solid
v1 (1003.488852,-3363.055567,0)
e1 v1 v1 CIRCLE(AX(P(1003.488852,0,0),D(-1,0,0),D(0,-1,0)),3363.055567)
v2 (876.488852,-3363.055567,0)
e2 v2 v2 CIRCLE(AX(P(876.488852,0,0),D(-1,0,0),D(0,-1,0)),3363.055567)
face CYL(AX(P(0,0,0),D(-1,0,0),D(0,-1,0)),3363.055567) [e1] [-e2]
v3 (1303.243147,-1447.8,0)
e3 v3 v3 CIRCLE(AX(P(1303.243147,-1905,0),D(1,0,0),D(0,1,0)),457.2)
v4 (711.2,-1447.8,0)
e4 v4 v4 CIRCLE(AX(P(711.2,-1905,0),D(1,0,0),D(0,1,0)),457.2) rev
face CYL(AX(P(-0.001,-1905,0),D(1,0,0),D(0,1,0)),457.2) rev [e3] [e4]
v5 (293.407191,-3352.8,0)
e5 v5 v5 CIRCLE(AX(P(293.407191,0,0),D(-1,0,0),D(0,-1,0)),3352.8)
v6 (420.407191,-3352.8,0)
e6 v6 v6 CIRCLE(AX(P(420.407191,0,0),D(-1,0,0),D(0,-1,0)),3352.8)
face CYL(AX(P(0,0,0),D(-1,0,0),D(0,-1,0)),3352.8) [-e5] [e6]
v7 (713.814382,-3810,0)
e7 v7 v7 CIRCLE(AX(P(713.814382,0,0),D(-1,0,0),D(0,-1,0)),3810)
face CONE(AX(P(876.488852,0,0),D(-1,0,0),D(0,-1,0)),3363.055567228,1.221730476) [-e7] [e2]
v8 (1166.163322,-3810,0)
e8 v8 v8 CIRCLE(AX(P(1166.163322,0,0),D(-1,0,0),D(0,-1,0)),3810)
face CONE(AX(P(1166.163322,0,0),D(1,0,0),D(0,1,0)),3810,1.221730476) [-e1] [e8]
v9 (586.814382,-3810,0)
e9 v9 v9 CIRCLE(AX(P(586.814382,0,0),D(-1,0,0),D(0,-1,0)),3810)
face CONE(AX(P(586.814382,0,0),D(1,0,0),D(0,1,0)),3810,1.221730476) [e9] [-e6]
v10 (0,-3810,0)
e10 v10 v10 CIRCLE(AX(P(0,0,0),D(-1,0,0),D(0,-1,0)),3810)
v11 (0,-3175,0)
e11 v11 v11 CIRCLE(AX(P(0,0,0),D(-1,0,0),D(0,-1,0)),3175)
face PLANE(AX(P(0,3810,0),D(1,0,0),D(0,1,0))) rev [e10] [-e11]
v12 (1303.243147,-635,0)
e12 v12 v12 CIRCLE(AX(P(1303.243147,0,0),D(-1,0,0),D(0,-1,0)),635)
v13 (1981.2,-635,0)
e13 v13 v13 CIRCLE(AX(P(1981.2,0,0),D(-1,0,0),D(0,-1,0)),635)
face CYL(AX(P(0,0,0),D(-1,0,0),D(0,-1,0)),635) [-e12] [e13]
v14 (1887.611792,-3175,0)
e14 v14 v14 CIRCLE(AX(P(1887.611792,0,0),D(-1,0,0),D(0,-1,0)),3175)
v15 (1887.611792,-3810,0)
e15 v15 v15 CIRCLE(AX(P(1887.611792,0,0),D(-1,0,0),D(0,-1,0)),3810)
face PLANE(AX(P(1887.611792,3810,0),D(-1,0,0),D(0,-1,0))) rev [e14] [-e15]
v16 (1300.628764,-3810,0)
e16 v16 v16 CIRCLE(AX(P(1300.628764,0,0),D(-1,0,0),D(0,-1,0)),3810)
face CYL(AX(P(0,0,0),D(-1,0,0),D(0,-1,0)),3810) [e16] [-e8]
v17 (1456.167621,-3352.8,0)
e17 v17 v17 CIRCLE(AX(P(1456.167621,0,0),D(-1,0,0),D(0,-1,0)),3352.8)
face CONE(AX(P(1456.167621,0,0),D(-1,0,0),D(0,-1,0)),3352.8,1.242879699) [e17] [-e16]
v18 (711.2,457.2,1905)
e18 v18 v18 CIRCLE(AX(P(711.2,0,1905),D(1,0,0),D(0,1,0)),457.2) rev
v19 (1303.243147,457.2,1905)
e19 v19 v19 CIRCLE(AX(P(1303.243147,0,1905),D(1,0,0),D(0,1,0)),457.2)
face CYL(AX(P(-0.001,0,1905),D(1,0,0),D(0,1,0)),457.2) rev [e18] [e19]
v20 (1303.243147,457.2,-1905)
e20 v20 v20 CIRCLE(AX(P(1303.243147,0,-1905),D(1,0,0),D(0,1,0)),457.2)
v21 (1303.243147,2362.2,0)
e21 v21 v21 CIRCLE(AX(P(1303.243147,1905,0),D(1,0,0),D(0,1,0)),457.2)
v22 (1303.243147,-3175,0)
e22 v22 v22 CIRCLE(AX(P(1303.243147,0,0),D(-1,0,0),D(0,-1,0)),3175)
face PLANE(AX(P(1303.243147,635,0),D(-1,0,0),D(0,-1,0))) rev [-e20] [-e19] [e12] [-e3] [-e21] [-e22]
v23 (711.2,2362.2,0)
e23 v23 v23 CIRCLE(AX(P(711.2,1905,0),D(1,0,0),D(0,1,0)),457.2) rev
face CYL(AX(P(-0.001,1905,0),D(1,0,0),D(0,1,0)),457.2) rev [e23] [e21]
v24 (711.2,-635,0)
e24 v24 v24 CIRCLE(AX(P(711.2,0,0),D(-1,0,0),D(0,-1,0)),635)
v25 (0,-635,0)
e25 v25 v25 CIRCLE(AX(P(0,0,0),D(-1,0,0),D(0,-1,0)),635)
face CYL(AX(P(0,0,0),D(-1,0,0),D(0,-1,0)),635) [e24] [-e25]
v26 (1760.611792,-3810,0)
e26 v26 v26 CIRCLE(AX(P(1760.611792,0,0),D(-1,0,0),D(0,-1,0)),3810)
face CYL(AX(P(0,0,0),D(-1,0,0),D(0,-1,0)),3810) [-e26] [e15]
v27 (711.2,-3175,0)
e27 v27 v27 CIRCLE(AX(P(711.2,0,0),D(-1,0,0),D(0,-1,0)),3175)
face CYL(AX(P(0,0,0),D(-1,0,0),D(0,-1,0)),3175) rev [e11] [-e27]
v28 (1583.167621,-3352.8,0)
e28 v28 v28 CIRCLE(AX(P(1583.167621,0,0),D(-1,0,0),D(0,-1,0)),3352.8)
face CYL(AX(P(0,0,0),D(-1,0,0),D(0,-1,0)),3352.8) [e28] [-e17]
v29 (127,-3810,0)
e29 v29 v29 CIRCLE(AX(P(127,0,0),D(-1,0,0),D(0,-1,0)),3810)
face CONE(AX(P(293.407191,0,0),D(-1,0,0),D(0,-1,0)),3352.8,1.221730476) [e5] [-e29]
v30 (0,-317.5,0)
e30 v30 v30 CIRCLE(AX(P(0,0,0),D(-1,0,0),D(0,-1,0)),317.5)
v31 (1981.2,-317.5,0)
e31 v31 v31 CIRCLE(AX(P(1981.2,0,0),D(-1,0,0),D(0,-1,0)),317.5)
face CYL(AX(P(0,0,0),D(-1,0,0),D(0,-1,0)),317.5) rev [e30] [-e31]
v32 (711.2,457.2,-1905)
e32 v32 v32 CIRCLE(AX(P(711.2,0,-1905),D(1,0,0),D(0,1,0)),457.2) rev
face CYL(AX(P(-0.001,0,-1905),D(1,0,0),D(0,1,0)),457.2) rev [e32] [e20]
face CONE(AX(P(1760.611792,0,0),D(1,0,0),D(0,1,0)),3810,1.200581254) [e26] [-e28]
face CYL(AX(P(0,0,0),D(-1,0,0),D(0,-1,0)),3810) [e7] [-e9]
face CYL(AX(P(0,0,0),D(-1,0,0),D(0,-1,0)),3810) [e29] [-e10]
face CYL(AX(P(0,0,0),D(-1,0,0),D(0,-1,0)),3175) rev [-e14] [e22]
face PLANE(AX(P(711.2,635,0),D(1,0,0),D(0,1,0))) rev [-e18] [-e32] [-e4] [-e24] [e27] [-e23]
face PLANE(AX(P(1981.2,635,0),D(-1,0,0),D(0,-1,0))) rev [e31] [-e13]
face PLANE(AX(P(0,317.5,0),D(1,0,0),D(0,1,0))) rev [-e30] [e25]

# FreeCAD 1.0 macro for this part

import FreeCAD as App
import Part
import Sketcher
from FreeCAD import Vector
Q = App.Units.Quantity

doc = App.newDocument("Part")
body = doc.addObject("PartDesign::Body", "Body")

sketch1 = body.newObject("Sketcher::SketchObject", "Sketch")
sketch1.AttachmentSupport = (doc.getObject("XY_Plane"), [""])
sketch1.MapMode = "FlatFace"
sketch1.addGeometry(Part.LineSegment(Vector(0, 635, 0), Vector(0, 318, 0)), False)
sketch1.addGeometry(Part.LineSegment(Vector(0, 318, 0), Vector(1981, 318, 0)), False)
sketch1.addGeometry(Part.LineSegment(Vector(1981, 318, 0), Vector(1981, 635, 0)), False)
sketch1.addGeometry(Part.LineSegment(Vector(1981, 635, 0), Vector(1303, 635, 0)), False)
sketch1.addGeometry(Part.LineSegment(Vector(1303, 635, 0), Vector(1303, 3175, 0)), False)
sketch1.addGeometry(Part.LineSegment(Vector(1303, 3175, 0), Vector(1888, 3175, 0)), False)
sketch1.addGeometry(Part.LineSegment(Vector(1888, 3175, 0), Vector(1888, 3810, 0)), False)
sketch1.addGeometry(Part.LineSegment(Vector(1888, 3810, 0), Vector(1761, 3810, 0)), False)
sketch1.addGeometry(Part.LineSegment(Vector(1761, 3810, 0), Vector(1583, 3353, 0)), False)
sketch1.addGeometry(Part.LineSegment(Vector(1583, 3353, 0), Vector(1456, 3353, 0)), False)
sketch1.addGeometry(Part.LineSegment(Vector(1456, 3353, 0), Vector(1301, 3810, 0)), False)
sketch1.addGeometry(Part.LineSegment(Vector(1301, 3810, 0), Vector(1166, 3810, 0)), False)
sketch1.addGeometry(Part.LineSegment(Vector(1166, 3810, 0), Vector(1003, 3363, 0)), False)
sketch1.addGeometry(Part.LineSegment(Vector(1003, 3363, 0), Vector(876, 3363, 0)), False)
sketch1.addGeometry(Part.LineSegment(Vector(876, 3363, 0), Vector(714, 3810, 0)), False)
sketch1.addGeometry(Part.LineSegment(Vector(714, 3810, 0), Vector(587, 3810, 0)), False)
sketch1.addGeometry(Part.LineSegment(Vector(587, 3810, 0), Vector(420, 3353, 0)), False)
sketch1.addGeometry(Part.LineSegment(Vector(420, 3353, 0), Vector(293, 3353, 0)), False)
sketch1.addGeometry(Part.LineSegment(Vector(293, 3353, 0), Vector(127, 3810, 0)), False)
sketch1.addGeometry(Part.LineSegment(Vector(127, 3810, 0), Vector(0, 3810, 0)), False)
sketch1.addGeometry(Part.LineSegment(Vector(0, 3810, 0), Vector(0, 3175, 0)), False)
sketch1.addGeometry(Part.LineSegment(Vector(0, 3175, 0), Vector(711, 3175, 0)), False)
sketch1.addGeometry(Part.LineSegment(Vector(711, 3175, 0), Vector(711, 635, 0)), False)
sketch1.addGeometry(Part.LineSegment(Vector(711, 635, 0), Vector(0, 635, 0)), False)
sketch1.addConstraint(Sketcher.Constraint("Coincident", 0, 2, 1, 1))
sketch1.addConstraint(Sketcher.Constraint("Coincident", 1, 2, 2, 1))
sketch1.addConstraint(Sketcher.Constraint("Coincident", 2, 2, 3, 1))
sketch1.addConstraint(Sketcher.Constraint("Coincident", 3, 2, 4, 1))
sketch1.addConstraint(Sketcher.Constraint("Coincident", 4, 2, 5, 1))
sketch1.addConstraint(Sketcher.Constraint("Coincident", 5, 2, 6, 1))
sketch1.addConstraint(Sketcher.Constraint("Coincident", 6, 2, 7, 1))
sketch1.addConstraint(Sketcher.Constraint("Coincident", 7, 2, 8, 1))
sketch1.addConstraint(Sketcher.Constraint("Coincident", 8, 2, 9, 1))
sketch1.addConstraint(Sketcher.Constraint("Coincident", 9, 2, 10, 1))
sketch1.addConstraint(Sketcher.Constraint("Coincident", 10, 2, 11, 1))
sketch1.addConstraint(Sketcher.Constraint("Coincident", 11, 2, 12, 1))
sketch1.addConstraint(Sketcher.Constraint("Coincident", 12, 2, 13, 1))
sketch1.addConstraint(Sketcher.Constraint("Coincident", 13, 2, 14, 1))
sketch1.addConstraint(Sketcher.Constraint("Coincident", 14, 2, 15, 1))
sketch1.addConstraint(Sketcher.Constraint("Coincident", 15, 2, 16, 1))
sketch1.addConstraint(Sketcher.Constraint("Coincident", 16, 2, 17, 1))
sketch1.addConstraint(Sketcher.Constraint("Coincident", 17, 2, 18, 1))
sketch1.addConstraint(Sketcher.Constraint("Coincident", 18, 2, 19, 1))
sketch1.addConstraint(Sketcher.Constraint("Coincident", 19, 2, 20, 1))
sketch1.addConstraint(Sketcher.Constraint("Coincident", 20, 2, 21, 1))
sketch1.addConstraint(Sketcher.Constraint("Coincident", 21, 2, 22, 1))
sketch1.addConstraint(Sketcher.Constraint("Coincident", 22, 2, 23, 1))
sketch1.addConstraint(Sketcher.Constraint("Coincident", 23, 2, 0, 1))
sketch1.addConstraint(Sketcher.Constraint("Vertical", 0))
sketch1.addConstraint(Sketcher.Constraint("Horizontal", 1))
sketch1.addConstraint(Sketcher.Constraint("Vertical", 2))
sketch1.addConstraint(Sketcher.Constraint("Horizontal", 3))
sketch1.addConstraint(Sketcher.Constraint("Vertical", 4))
sketch1.addConstraint(Sketcher.Constraint("Horizontal", 5))
sketch1.addConstraint(Sketcher.Constraint("Vertical", 6))
sketch1.addConstraint(Sketcher.Constraint("Horizontal", 7))
sketch1.addConstraint(Sketcher.Constraint("Horizontal", 9))
sketch1.addConstraint(Sketcher.Constraint("Horizontal", 11))
sketch1.addConstraint(Sketcher.Constraint("Horizontal", 13))
sketch1.addConstraint(Sketcher.Constraint("Horizontal", 15))
sketch1.addConstraint(Sketcher.Constraint("Horizontal", 17))
sketch1.addConstraint(Sketcher.Constraint("Horizontal", 19))
sketch1.addConstraint(Sketcher.Constraint("Vertical", 20))
sketch1.addConstraint(Sketcher.Constraint("Horizontal", 21))
sketch1.addConstraint(Sketcher.Constraint("Vertical", 22))
sketch1.addConstraint(Sketcher.Constraint("Horizontal", 23))
sketch1.addConstraint(Sketcher.Constraint("PointOnObject", 0, 2, -2))
sketch1.addConstraint(Sketcher.Constraint("PointOnObject", 19, 2, -2))
sketch1.addConstraint(Sketcher.Constraint("Parallel", 12, 16))
sketch1.addConstraint(Sketcher.Constraint("Parallel", 14, 18))
sketch1.addConstraint(Sketcher.Constraint("Horizontal", 7, 2, 10, 2))
sketch1.addConstraint(Sketcher.Constraint("Horizontal", 11, 2, 14, 2))
sketch1.addConstraint(Sketcher.Constraint("Horizontal", 9, 2, 16, 2))
sketch1.addConstraint(Sketcher.Constraint("Horizontal", 15, 2, 18, 2))
sketch1.addConstraint(Sketcher.Constraint("Horizontal", 5, 2, 20, 2))
sketch1.addConstraint(Sketcher.Constraint("Horizontal", 3, 2, 22, 2))
sketch1.addConstraint(Sketcher.Constraint("Equal", 7, 9))
sketch1.addConstraint(Sketcher.Constraint("Equal", 9, 13))
sketch1.addConstraint(Sketcher.Constraint("Equal", 13, 15))
sketch1.addConstraint(Sketcher.Constraint("Equal", 15, 17))
sketch1.addConstraint(Sketcher.Constraint("Equal", 17, 19))
sketch1.addConstraint(Sketcher.Constraint("Equal", 12, 14))
sketch1.addConstraint(Sketcher.Constraint("DistanceX", 1, 1, 1, 2, Q("78 in")))
sketch1.addConstraint(Sketcher.Constraint("DistanceX", 7, 2, 7, 1, Q("5 in")))
sketch1.addConstraint(Sketcher.Constraint("DistanceX", 21, 1, 21, 2, Q("28 in")))
sketch1.addConstraint(Sketcher.Constraint("DistanceY", 4, 1, 4, 2, Q("100 in")))
sketch1.addConstraint(Sketcher.Constraint("DistanceY", 6, 1, 6, 2, Q("25 in")))
sketch1.addConstraint(Sketcher.Constraint("DistanceY", 0, 2, 0, 1, Q("12.5 in")))
sketch1.addConstraint(Sketcher.Constraint("DistanceY", -1, 1, 2, 2, Q("25 in")))
sketch1.addConstraint(Sketcher.Constraint("DistanceY", -1, 1, 8, 2, Q("132 in")))
sketch1.addConstraint(Sketcher.Constraint("Angle", 12, Q("-110 deg")))
sketch1.addConstraint(Sketcher.Constraint("DistanceX", 11, 2, 9, 2, 290.004299))
sketch1.addConstraint(Sketcher.Constraint("Distance", 10, 482.93289))
sketch1.addConstraint(Sketcher.Constraint("Distance", 12, 475.628331))
sketch1.addConstraint(Sketcher.Constraint("DistanceX", 3, 2, 3, 1, 677.956853))
sketch1.addConstraint(Sketcher.Constraint("DistanceX", 5, 1, 5, 2, 584.368645))
revolution = body.newObject("PartDesign::Revolution", "Revolution")
revolution.Profile = sketch1
revolution.ReferenceAxis = (sketch1, ["H_Axis"])
revolution.Angle = 360

sketch2 = body.newObject("Sketcher::SketchObject", "Sketch001")
sketch2.AttachmentSupport = (doc.getObject("YZ_Plane"), [""])
sketch2.MapMode = "FlatFace"
sketch2.AttachmentOffset = App.Placement(Vector(0, 0, 1303.243147), App.Rotation())
sketch2.addGeometry(Part.Circle(Vector(1905, 0, 0), Vector(0, 0, 1), 457), False)
sketch2.addConstraint(Sketcher.Constraint("PointOnObject", 0, 3, -1))
sketch2.addConstraint(Sketcher.Constraint("Diameter", 0, Q("36 in")))
sketch2.addConstraint(Sketcher.Constraint("DistanceX", -1, 1, 0, 3, Q("75 in")))
pocket1 = body.newObject("PartDesign::Pocket", "Pocket")
pocket1.Profile = sketch2
pocket1.Type = "UpToFirst"

sketch3 = body.newObject("Sketcher::SketchObject", "Sketch002")
sketch3.AttachmentSupport = (doc.getObject("YZ_Plane"), [""])
sketch3.MapMode = "FlatFace"
sketch3.AttachmentOffset = App.Placement(Vector(0, 0, 1303.243147), App.Rotation())
sketch3.addGeometry(Part.Circle(Vector(-1905, 0, 0), Vector(0, 0, 1), 457), False)
sketch3.addConstraint(Sketcher.Constraint("PointOnObject", 0, 3, -1))
sketch3.addConstraint(Sketcher.Constraint("Diameter", 0, Q("36 in")))
sketch3.addConstraint(Sketcher.Constraint("DistanceX", 0, 3, -1, 1, Q("75 in")))
pocket2 = body.newObject("PartDesign::Pocket", "Pocket001")
pocket2.Profile = sketch3
pocket2.Type = "UpToFirst"

sketch4 = body.newObject("Sketcher::SketchObject", "Sketch003")
sketch4.AttachmentSupport = (doc.getObject("YZ_Plane"), [""])
sketch4.MapMode = "FlatFace"
sketch4.AttachmentOffset = App.Placement(Vector(0, 0, 1303.243147), App.Rotation())
sketch4.addGeometry(Part.Circle(Vector(0, -1905, 0), Vector(0, 0, 1), 457), False)
sketch4.addConstraint(Sketcher.Constraint("PointOnObject", 0, 3, -2))
sketch4.addConstraint(Sketcher.Constraint("Diameter", 0, Q("36 in")))
sketch4.addConstraint(Sketcher.Constraint("DistanceY", 0, 3, -1, 1, Q("75 in")))
pocket3 = body.newObject("PartDesign::Pocket", "Pocket002")
pocket3.Profile = sketch4
pocket3.Type = "UpToFirst"

sketch5 = body.newObject("Sketcher::SketchObject", "Sketch004")
sketch5.AttachmentSupport = (doc.getObject("YZ_Plane"), [""])
sketch5.MapMode = "FlatFace"
sketch5.AttachmentOffset = App.Placement(Vector(0, 0, 1303.243147), App.Rotation())
sketch5.addGeometry(Part.Circle(Vector(0, 1905, 0), Vector(0, 0, 1), 457), False)
sketch5.addConstraint(Sketcher.Constraint("PointOnObject", 0, 3, -2))
sketch5.addConstraint(Sketcher.Constraint("Diameter", 0, Q("36 in")))
sketch5.addConstraint(Sketcher.Constraint("DistanceY", -1, 1, 0, 3, Q("75 in")))
pocket4 = body.newObject("PartDesign::Pocket", "Pocket003")
pocket4.Profile = sketch5
pocket4.Type = "UpToFirst"

doc.recompute()
